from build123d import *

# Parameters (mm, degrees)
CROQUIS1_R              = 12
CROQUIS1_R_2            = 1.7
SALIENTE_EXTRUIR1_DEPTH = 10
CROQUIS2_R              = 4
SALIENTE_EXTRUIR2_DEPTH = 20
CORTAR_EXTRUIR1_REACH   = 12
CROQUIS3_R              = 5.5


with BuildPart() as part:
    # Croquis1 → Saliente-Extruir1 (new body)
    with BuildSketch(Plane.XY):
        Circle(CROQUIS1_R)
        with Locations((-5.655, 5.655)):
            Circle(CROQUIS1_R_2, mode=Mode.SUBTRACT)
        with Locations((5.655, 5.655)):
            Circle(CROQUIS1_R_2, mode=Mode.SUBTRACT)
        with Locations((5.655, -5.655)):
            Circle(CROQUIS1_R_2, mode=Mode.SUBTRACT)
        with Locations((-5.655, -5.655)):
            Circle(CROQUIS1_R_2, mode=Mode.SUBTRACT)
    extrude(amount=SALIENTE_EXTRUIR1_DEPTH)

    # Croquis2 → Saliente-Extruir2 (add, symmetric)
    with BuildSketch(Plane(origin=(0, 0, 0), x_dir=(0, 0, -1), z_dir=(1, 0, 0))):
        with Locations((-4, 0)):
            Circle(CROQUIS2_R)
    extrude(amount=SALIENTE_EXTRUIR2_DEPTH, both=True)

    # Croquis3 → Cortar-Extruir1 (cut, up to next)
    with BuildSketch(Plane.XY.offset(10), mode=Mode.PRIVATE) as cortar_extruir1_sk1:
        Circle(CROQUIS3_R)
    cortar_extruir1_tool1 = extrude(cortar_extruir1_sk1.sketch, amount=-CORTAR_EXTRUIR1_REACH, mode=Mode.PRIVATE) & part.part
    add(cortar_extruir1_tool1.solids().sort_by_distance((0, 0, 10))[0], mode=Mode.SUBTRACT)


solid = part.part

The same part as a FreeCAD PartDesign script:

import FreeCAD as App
import Part
import Sketcher
from FreeCAD import Vector

doc = App.newDocument("Part")
body = doc.addObject("PartDesign::Body", "Body")

# Sketch on XY plane
sketch1 = body.newObject("Sketcher::SketchObject", "Sketch")
sketch1.AttachmentSupport = (doc.getObject("XY_Plane"), [""])
sketch1.MapMode = "FlatFace"
sketch1.addGeometry([
    Part.Circle(Vector(0, 0, 0), Vector(0, 0, 1), 12),  # 0
    Part.Circle(Vector(-5.655, -5.655, 0), Vector(0, 0, 1), 1.7),  # 1
    Part.Circle(Vector(5.655, -5.655, 0), Vector(0, 0, 1), 1.7),  # 2
    Part.Circle(Vector(-5.655, 5.655, 0), Vector(0, 0, 1), 1.7),  # 3
    Part.Circle(Vector(5.655, 5.655, 0), Vector(0, 0, 1), 1.7),  # 4
], False)
sketch1.addConstraint([
    Sketcher.Constraint("Coincident", 0, 3, -1, 1),
    Sketcher.Constraint("Equal", 1, 2),
    Sketcher.Constraint("Equal", 2, 3),
    Sketcher.Constraint("Equal", 3, 4),
    Sketcher.Constraint("Symmetric", 2, 3, 3, 3, -1, 1),
    Sketcher.Constraint("Symmetric", 1, 3, 4, 3, -1, 1),
    Sketcher.Constraint("Symmetric", 1, 3, 2, 3, -2),
    Sketcher.Constraint("Diameter", 0, 24.0),
    Sketcher.Constraint("Diameter", 1, 3.4),
    Sketcher.Constraint("DistanceX", 1, 3, 2, 3, 11.31),
    Sketcher.Constraint("DistanceY", 1, 3, 3, 3, 11.31),
])
pad1 = body.newObject("PartDesign::Pad", "Pad")
pad1.Profile = sketch1
pad1.Length = 10

# Sketch on YZ plane
sketch2 = body.newObject("Sketcher::SketchObject", "Sketch001")
sketch2.AttachmentSupport = (doc.getObject("YZ_Plane"), [""])
sketch2.MapMode = "FlatFace"
sketch2.addGeometry(Part.Circle(Vector(0, 4, 0), Vector(0, 0, 1), 4), False)
sketch2.addConstraint([
    Sketcher.Constraint("PointOnObject", 0, 3, -2),
    Sketcher.Constraint("Diameter", 0, 8.0),
    Sketcher.Constraint("DistanceY", -1, 1, 0, 3, 4.0),
])
pad2 = body.newObject("PartDesign::Pad", "Pad001")
pad2.Profile = sketch2
pad2.Length = 40
pad2.Midplane = True

# Sketch on XY plane
sketch3 = body.newObject("Sketcher::SketchObject", "Sketch002")
sketch3.AttachmentSupport = (doc.getObject("XY_Plane"), [""])
sketch3.MapMode = "FlatFace"
sketch3.AttachmentOffset = App.Placement(Vector(0, 0, 10), App.Rotation())
sketch3.addGeometry(Part.Circle(Vector(0, 0, 0), Vector(0, 0, 1), 5.5), False)
sketch3.addConstraint([
    Sketcher.Constraint("Coincident", 0, 3, -1, 1),
    Sketcher.Constraint("Diameter", 0, 11.0),
])
pocket1 = body.newObject("PartDesign::Pocket", "Pocket")
pocket1.Profile = sketch3
pocket1.Type = "UpToFirst"

doc.recompute()
